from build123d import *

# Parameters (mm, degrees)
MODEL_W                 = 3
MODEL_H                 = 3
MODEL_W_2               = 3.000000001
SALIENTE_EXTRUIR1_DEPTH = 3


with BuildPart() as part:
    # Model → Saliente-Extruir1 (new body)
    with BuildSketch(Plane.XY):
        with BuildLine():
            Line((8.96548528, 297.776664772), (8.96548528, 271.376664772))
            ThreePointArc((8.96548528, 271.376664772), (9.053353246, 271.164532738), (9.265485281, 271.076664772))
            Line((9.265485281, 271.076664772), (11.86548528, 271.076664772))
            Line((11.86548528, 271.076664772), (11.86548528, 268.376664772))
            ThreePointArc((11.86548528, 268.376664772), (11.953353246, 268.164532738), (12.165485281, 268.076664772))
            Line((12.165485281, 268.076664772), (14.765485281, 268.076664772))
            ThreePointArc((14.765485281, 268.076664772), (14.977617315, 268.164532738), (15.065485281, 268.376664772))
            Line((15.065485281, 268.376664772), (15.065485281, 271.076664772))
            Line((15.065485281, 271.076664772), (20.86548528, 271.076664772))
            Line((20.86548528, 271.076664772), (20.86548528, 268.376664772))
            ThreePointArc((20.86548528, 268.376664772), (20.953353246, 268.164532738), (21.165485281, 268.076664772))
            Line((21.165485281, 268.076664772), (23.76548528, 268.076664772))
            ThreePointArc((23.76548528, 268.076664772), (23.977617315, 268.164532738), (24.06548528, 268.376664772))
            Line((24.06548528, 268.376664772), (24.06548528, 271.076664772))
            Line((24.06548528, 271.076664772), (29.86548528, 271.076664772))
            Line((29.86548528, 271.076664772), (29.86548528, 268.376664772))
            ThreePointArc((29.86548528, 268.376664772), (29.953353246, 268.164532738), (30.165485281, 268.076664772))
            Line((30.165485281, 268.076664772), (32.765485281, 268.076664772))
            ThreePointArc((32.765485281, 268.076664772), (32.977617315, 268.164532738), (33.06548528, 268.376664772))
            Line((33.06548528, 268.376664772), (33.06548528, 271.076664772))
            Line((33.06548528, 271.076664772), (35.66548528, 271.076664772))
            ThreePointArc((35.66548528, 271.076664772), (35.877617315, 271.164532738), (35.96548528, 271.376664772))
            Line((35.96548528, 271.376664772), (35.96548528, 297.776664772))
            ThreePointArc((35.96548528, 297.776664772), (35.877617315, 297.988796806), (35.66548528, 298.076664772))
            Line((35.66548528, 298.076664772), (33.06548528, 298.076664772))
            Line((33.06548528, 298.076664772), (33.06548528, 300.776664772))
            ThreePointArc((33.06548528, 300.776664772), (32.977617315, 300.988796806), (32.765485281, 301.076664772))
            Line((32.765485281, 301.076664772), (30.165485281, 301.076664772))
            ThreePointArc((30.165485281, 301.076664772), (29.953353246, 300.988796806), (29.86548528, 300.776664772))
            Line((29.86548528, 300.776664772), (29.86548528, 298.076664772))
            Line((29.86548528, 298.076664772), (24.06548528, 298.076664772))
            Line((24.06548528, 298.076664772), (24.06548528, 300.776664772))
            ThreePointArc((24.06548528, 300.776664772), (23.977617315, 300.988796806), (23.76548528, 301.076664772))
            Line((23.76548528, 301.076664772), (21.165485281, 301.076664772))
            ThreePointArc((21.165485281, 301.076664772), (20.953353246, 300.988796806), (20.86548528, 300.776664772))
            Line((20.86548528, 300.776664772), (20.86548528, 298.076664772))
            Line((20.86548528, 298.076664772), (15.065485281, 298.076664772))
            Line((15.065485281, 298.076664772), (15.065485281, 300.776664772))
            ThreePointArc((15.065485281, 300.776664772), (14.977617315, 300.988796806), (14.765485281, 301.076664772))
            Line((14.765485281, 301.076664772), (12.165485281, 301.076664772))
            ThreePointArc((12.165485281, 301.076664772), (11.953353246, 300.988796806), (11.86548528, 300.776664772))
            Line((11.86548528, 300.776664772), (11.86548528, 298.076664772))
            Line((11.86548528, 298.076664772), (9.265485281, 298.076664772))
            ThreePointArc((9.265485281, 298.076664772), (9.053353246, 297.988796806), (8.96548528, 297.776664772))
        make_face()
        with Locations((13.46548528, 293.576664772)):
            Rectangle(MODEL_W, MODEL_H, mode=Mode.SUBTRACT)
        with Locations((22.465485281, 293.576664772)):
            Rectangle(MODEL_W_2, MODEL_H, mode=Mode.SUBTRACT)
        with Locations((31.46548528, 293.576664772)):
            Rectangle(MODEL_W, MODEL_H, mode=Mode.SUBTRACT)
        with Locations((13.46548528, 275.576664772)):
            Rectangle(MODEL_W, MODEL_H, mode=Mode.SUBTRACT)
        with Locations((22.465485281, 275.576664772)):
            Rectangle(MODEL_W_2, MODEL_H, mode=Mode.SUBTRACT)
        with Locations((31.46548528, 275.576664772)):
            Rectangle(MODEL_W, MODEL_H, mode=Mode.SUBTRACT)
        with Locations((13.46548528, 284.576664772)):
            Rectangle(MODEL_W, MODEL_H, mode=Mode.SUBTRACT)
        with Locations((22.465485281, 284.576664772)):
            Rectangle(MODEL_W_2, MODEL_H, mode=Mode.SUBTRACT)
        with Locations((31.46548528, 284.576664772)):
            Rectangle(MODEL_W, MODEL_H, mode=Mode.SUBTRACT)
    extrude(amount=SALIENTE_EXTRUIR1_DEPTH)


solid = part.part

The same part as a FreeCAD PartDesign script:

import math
import FreeCAD as App
import Part
import Sketcher


def add_polygon(sketch, points):
    """Adds a closed chain of lines whose ends are joined by coincident constraints."""
    first, n = sketch.GeometryCount, len(points)
    for a, b in zip(points, points[1:] + points[:1]):
        sketch.addGeometry(Part.LineSegment(App.Vector(*a, 0), App.Vector(*b, 0)), False)
    for i in range(n):
        sketch.addConstraint(Sketcher.Constraint("Coincident", first + i, 2, first + (i + 1) % n, 1))

doc = App.newDocument("Part")
params = doc.addObject("Spreadsheet::Sheet", "Params")
for row, (alias, value) in enumerate([
    ("sketch1_radius", "0.3 mm"),
    ("sketch1_width", "3 mm"),
    ("sketch1_width2", "2.6 mm"),
    ("sketch1_width3", "5.8 mm"),
    ("sketch1_height", "26.4 mm"),
    ("pad1_length", "3 mm"),
], start=1):
    params.set(f"A{row}", alias)
    params.set(f"B{row}", "=" + value)
    params.setAlias(f"B{row}", alias)

body = doc.addObject("PartDesign::Body", "Body")

# Sketch on XY plane
sketch1 = doc.addObject("Sketcher::SketchObject", "Sketch")
body.addObject(sketch1)
sketch1.AttachmentSupport = (doc.XY_Plane, [""])
sketch1.MapMode = "FlatFace"
sketch1.addGeometry(Part.LineSegment(App.Vector(8.965485, 297.776665, 0), App.Vector(8.965485, 271.376665, 0)), False)  # 0
sketch1.addGeometry(Part.ArcOfCircle(Part.Circle(App.Vector(9.265485, 271.376665, 0), App.Vector(0, 0, 1), 0.3), math.radians(-180), math.radians(-90)), False)  # 1
sketch1.addGeometry(Part.LineSegment(App.Vector(9.265485, 271.076665, 0), App.Vector(11.865485, 271.076665, 0)), False)  # 2
sketch1.addGeometry(Part.LineSegment(App.Vector(11.865485, 271.076665, 0), App.Vector(11.865485, 268.376665, 0)), False)  # 3
sketch1.addGeometry(Part.ArcOfCircle(Part.Circle(App.Vector(12.165485, 268.376665, 0), App.Vector(0, 0, 1), 0.3), math.radians(-180), math.radians(-90)), False)  # 4
sketch1.addGeometry(Part.LineSegment(App.Vector(12.165485, 268.076665, 0), App.Vector(14.765485, 268.076665, 0)), False)  # 5
sketch1.addGeometry(Part.ArcOfCircle(Part.Circle(App.Vector(14.765485, 268.376665, 0), App.Vector(0, 0, 1), 0.3), math.radians(-90), math.radians(0)), False)  # 6
sketch1.addGeometry(Part.LineSegment(App.Vector(15.065485, 268.376665, 0), App.Vector(15.065485, 271.076665, 0)), False)  # 7
sketch1.addGeometry(Part.LineSegment(App.Vector(15.065485, 271.076665, 0), App.Vector(20.865485, 271.076665, 0)), False)  # 8
sketch1.addGeometry(Part.LineSegment(App.Vector(20.865485, 271.076665, 0), App.Vector(20.865485, 268.376665, 0)), False)  # 9
sketch1.addGeometry(Part.ArcOfCircle(Part.Circle(App.Vector(21.165485, 268.376665, 0), App.Vector(0, 0, 1), 0.3), math.radians(-180), math.radians(-90)), False)  # 10
sketch1.addGeometry(Part.LineSegment(App.Vector(21.165485, 268.076665, 0), App.Vector(23.765485, 268.076665, 0)), False)  # 11
sketch1.addGeometry(Part.ArcOfCircle(Part.Circle(App.Vector(23.765485, 268.376665, 0), App.Vector(0, 0, 1), 0.3), math.radians(-90), math.radians(0)), False)  # 12
sketch1.addGeometry(Part.LineSegment(App.Vector(24.065485, 268.376665, 0), App.Vector(24.065485, 271.076665, 0)), False)  # 13
sketch1.addGeometry(Part.LineSegment(App.Vector(24.065485, 271.076665, 0), App.Vector(29.865485, 271.076665, 0)), False)  # 14
sketch1.addGeometry(Part.LineSegment(App.Vector(29.865485, 271.076665, 0), App.Vector(29.865485, 268.376665, 0)), False)  # 15
sketch1.addGeometry(Part.ArcOfCircle(Part.Circle(App.Vector(30.165485, 268.376665, 0), App.Vector(0, 0, 1), 0.3), math.radians(-180), math.radians(-90)), False)  # 16
sketch1.addGeometry(Part.LineSegment(App.Vector(30.165485, 268.076665, 0), App.Vector(32.765485, 268.076665, 0)), False)  # 17
sketch1.addGeometry(Part.ArcOfCircle(Part.Circle(App.Vector(32.765485, 268.376665, 0), App.Vector(0, 0, 1), 0.3), math.radians(-90), math.radians(0)), False)  # 18
sketch1.addGeometry(Part.LineSegment(App.Vector(33.065485, 268.376665, 0), App.Vector(33.065485, 271.076665, 0)), False)  # 19
sketch1.addGeometry(Part.LineSegment(App.Vector(33.065485, 271.076665, 0), App.Vector(35.665485, 271.076665, 0)), False)  # 20
sketch1.addGeometry(Part.ArcOfCircle(Part.Circle(App.Vector(35.665485, 271.376665, 0), App.Vector(0, 0, 1), 0.3), math.radians(-90), math.radians(0)), False)  # 21
sketch1.addGeometry(Part.LineSegment(App.Vector(35.965485, 271.376665, 0), App.Vector(35.965485, 297.776665, 0)), False)  # 22
sketch1.addGeometry(Part.ArcOfCircle(Part.Circle(App.Vector(35.665485, 297.776665, 0), App.Vector(0, 0, 1), 0.3), math.radians(0), math.radians(90)), False)  # 23
sketch1.addGeometry(Part.LineSegment(App.Vector(35.665485, 298.076665, 0), App.Vector(33.065485, 298.076665, 0)), False)  # 24
sketch1.addGeometry(Part.LineSegment(App.Vector(33.065485, 298.076665, 0), App.Vector(33.065485, 300.776665, 0)), False)  # 25
sketch1.addGeometry(Part.ArcOfCircle(Part.Circle(App.Vector(32.765485, 300.776665, 0), App.Vector(0, 0, 1), 0.3), math.radians(0), math.radians(90)), False)  # 26
sketch1.addGeometry(Part.LineSegment(App.Vector(32.765485, 301.076665, 0), App.Vector(30.165485, 301.076665, 0)), False)  # 27
sketch1.addGeometry(Part.ArcOfCircle(Part.Circle(App.Vector(30.165485, 300.776665, 0), App.Vector(0, 0, 1), 0.3), math.radians(90), math.radians(180)), False)  # 28
sketch1.addGeometry(Part.LineSegment(App.Vector(29.865485, 300.776665, 0), App.Vector(29.865485, 298.076665, 0)), False)  # 29
sketch1.addGeometry(Part.LineSegment(App.Vector(29.865485, 298.076665, 0), App.Vector(24.065485, 298.076665, 0)), False)  # 30
sketch1.addGeometry(Part.LineSegment(App.Vector(24.065485, 298.076665, 0), App.Vector(24.065485, 300.776665, 0)), False)  # 31
sketch1.addGeometry(Part.ArcOfCircle(Part.Circle(App.Vector(23.765485, 300.776665, 0), App.Vector(0, 0, 1), 0.3), math.radians(0), math.radians(90)), False)  # 32
sketch1.addGeometry(Part.LineSegment(App.Vector(23.765485, 301.076665, 0), App.Vector(21.165485, 301.076665, 0)), False)  # 33
sketch1.addGeometry(Part.ArcOfCircle(Part.Circle(App.Vector(21.165485, 300.776665, 0), App.Vector(0, 0, 1), 0.3), math.radians(90), math.radians(180)), False)  # 34
sketch1.addGeometry(Part.LineSegment(App.Vector(20.865485, 300.776665, 0), App.Vector(20.865485, 298.076665, 0)), False)  # 35
sketch1.addGeometry(Part.LineSegment(App.Vector(20.865485, 298.076665, 0), App.Vector(15.065485, 298.076665, 0)), False)  # 36
sketch1.addGeometry(Part.LineSegment(App.Vector(15.065485, 298.076665, 0), App.Vector(15.065485, 300.776665, 0)), False)  # 37
sketch1.addGeometry(Part.ArcOfCircle(Part.Circle(App.Vector(14.765485, 300.776665, 0), App.Vector(0, 0, 1), 0.3), math.radians(0), math.radians(90)), False)  # 38
sketch1.addGeometry(Part.LineSegment(App.Vector(14.765485, 301.076665, 0), App.Vector(12.165485, 301.076665, 0)), False)  # 39
sketch1.addGeometry(Part.ArcOfCircle(Part.Circle(App.Vector(12.165485, 300.776665, 0), App.Vector(0, 0, 1), 0.3), math.radians(90), math.radians(180)), False)  # 40
sketch1.addGeometry(Part.LineSegment(App.Vector(11.865485, 300.776665, 0), App.Vector(11.865485, 298.076665, 0)), False)  # 41
sketch1.addGeometry(Part.LineSegment(App.Vector(11.865485, 298.076665, 0), App.Vector(9.265485, 298.076665, 0)), False)  # 42
sketch1.addGeometry(Part.ArcOfCircle(Part.Circle(App.Vector(9.265485, 297.776665, 0), App.Vector(0, 0, 1), 0.3), math.radians(90), math.radians(180)), False)  # 43
add_polygon(sketch1, [(14.965485, 274.076665), (11.965485, 274.076665), (11.965485, 277.076665), (14.965485, 277.076665)])  # lines 44-47
add_polygon(sketch1, [(23.965485, 274.076665), (20.965485, 274.076665), (20.965485, 277.076665), (23.965485, 277.076665)])  # lines 48-51
add_polygon(sketch1, [(32.965485, 274.076665), (29.965485, 274.076665), (29.965485, 277.076665), (32.965485, 277.076665)])  # lines 52-55
add_polygon(sketch1, [(14.965485, 283.076665), (11.965485, 283.076665), (11.965485, 286.076665), (14.965485, 286.076665)])  # lines 56-59
add_polygon(sketch1, [(14.965485, 292.076665), (11.965485, 292.076665), (11.965485, 295.076665), (14.965485, 295.076665)])  # lines 60-63
add_polygon(sketch1, [(23.965485, 283.076665), (20.965485, 283.076665), (20.965485, 286.076665), (23.965485, 286.076665)])  # lines 64-67
add_polygon(sketch1, [(32.965485, 283.076665), (29.965485, 283.076665), (29.965485, 286.076665), (32.965485, 286.076665)])  # lines 68-71
add_polygon(sketch1, [(23.965485, 292.076665), (20.965485, 292.076665), (20.965485, 295.076665), (23.965485, 295.076665)])  # lines 72-75
add_polygon(sketch1, [(32.965485, 292.076665), (29.965485, 292.076665), (29.965485, 295.076665), (32.965485, 295.076665)])  # lines 76-79
sketch1.addConstraint([
    Sketcher.Constraint("Tangent", 0, 2, 1, 1),
    Sketcher.Constraint("Tangent", 1, 2, 2, 1),
    Sketcher.Constraint("Coincident", 2, 2, 3, 1),
    Sketcher.Constraint("Tangent", 3, 2, 4, 1),
    Sketcher.Constraint("Tangent", 4, 2, 5, 1),
    Sketcher.Constraint("Tangent", 5, 2, 6, 1),
    Sketcher.Constraint("Tangent", 6, 2, 7, 1),
    Sketcher.Constraint("Coincident", 7, 2, 8, 1),
    Sketcher.Constraint("Coincident", 8, 2, 9, 1),
    Sketcher.Constraint("Tangent", 9, 2, 10, 1),
    Sketcher.Constraint("Tangent", 10, 2, 11, 1),
    Sketcher.Constraint("Tangent", 11, 2, 12, 1),
    Sketcher.Constraint("Tangent", 12, 2, 13, 1),
    Sketcher.Constraint("Coincident", 13, 2, 14, 1),
    Sketcher.Constraint("Coincident", 14, 2, 15, 1),
    Sketcher.Constraint("Tangent", 15, 2, 16, 1),
    Sketcher.Constraint("Tangent", 16, 2, 17, 1),
    Sketcher.Constraint("Tangent", 17, 2, 18, 1),
    Sketcher.Constraint("Tangent", 18, 2, 19, 1),
    Sketcher.Constraint("Coincident", 19, 2, 20, 1),
    Sketcher.Constraint("Tangent", 20, 2, 21, 1),
    Sketcher.Constraint("Tangent", 21, 2, 22, 1),
    Sketcher.Constraint("Tangent", 22, 2, 23, 1),
    Sketcher.Constraint("Tangent", 23, 2, 24, 1),
    Sketcher.Constraint("Coincident", 24, 2, 25, 1),
    Sketcher.Constraint("Tangent", 25, 2, 26, 1),
    Sketcher.Constraint("Tangent", 26, 2, 27, 1),
    Sketcher.Constraint("Tangent", 27, 2, 28, 1),
    Sketcher.Constraint("Tangent", 28, 2, 29, 1),
    Sketcher.Constraint("Coincident", 29, 2, 30, 1),
    Sketcher.Constraint("Coincident", 30, 2, 31, 1),
    Sketcher.Constraint("Tangent", 31, 2, 32, 1),
    Sketcher.Constraint("Tangent", 32, 2, 33, 1),
    Sketcher.Constraint("Tangent", 33, 2, 34, 1),
    Sketcher.Constraint("Tangent", 34, 2, 35, 1),
    Sketcher.Constraint("Coincident", 35, 2, 36, 1),
    Sketcher.Constraint("Coincident", 36, 2, 37, 1),
    Sketcher.Constraint("Tangent", 37, 2, 38, 1),
    Sketcher.Constraint("Tangent", 38, 2, 39, 1),
    Sketcher.Constraint("Tangent", 39, 2, 40, 1),
    Sketcher.Constraint("Tangent", 40, 2, 41, 1),
    Sketcher.Constraint("Coincident", 41, 2, 42, 1),
    Sketcher.Constraint("Tangent", 42, 2, 43, 1),
    Sketcher.Constraint("Tangent", 43, 2, 0, 1),
    Sketcher.Constraint("Vertical", 0),
    Sketcher.Constraint("Horizontal", 2),
    Sketcher.Constraint("Vertical", 3),
    Sketcher.Constraint("Horizontal", 5),
    Sketcher.Constraint("Vertical", 7),
    Sketcher.Constraint("Horizontal", 8),
    Sketcher.Constraint("Vertical", 9),
    Sketcher.Constraint("Horizontal", 11),
    Sketcher.Constraint("Vertical", 13),
    Sketcher.Constraint("Horizontal", 14),
    Sketcher.Constraint("Vertical", 15),
    Sketcher.Constraint("Horizontal", 17),
    Sketcher.Constraint("Vertical", 19),
    Sketcher.Constraint("Horizontal", 20),
    Sketcher.Constraint("Vertical", 22),
    Sketcher.Constraint("Horizontal", 24),
    Sketcher.Constraint("Vertical", 25),
    Sketcher.Constraint("Horizontal", 27),
    Sketcher.Constraint("Vertical", 29),
    Sketcher.Constraint("Horizontal", 30),
    Sketcher.Constraint("Vertical", 31),
    Sketcher.Constraint("Horizontal", 33),
    Sketcher.Constraint("Vertical", 35),
    Sketcher.Constraint("Horizontal", 36),
    Sketcher.Constraint("Vertical", 37),
    Sketcher.Constraint("Horizontal", 39),
    Sketcher.Constraint("Vertical", 41),
    Sketcher.Constraint("Horizontal", 42),
    Sketcher.Constraint("Horizontal", 44),
    Sketcher.Constraint("Vertical", 45),
    Sketcher.Constraint("Horizontal", 46),
    Sketcher.Constraint("Vertical", 47),
    Sketcher.Constraint("Horizontal", 48),
    Sketcher.Constraint("Vertical", 49),
    Sketcher.Constraint("Horizontal", 50),
    Sketcher.Constraint("Vertical", 51),
    Sketcher.Constraint("Horizontal", 52),
    Sketcher.Constraint("Vertical", 53),
    Sketcher.Constraint("Horizontal", 54),
    Sketcher.Constraint("Vertical", 55),
    Sketcher.Constraint("Horizontal", 56),
    Sketcher.Constraint("Vertical", 57),
    Sketcher.Constraint("Horizontal", 58),
    Sketcher.Constraint("Vertical", 59),
    Sketcher.Constraint("Horizontal", 60),
    Sketcher.Constraint("Vertical", 61),
    Sketcher.Constraint("Horizontal", 62),
    Sketcher.Constraint("Vertical", 63),
    Sketcher.Constraint("Horizontal", 64),
    Sketcher.Constraint("Vertical", 65),
    Sketcher.Constraint("Horizontal", 66),
    Sketcher.Constraint("Vertical", 67),
    Sketcher.Constraint("Horizontal", 68),
    Sketcher.Constraint("Vertical", 69),
    Sketcher.Constraint("Horizontal", 70),
    Sketcher.Constraint("Vertical", 71),
    Sketcher.Constraint("Horizontal", 72),
    Sketcher.Constraint("Vertical", 73),
    Sketcher.Constraint("Horizontal", 74),
    Sketcher.Constraint("Vertical", 75),
    Sketcher.Constraint("Horizontal", 76),
    Sketcher.Constraint("Vertical", 77),
    Sketcher.Constraint("Horizontal", 78),
    Sketcher.Constraint("Vertical", 79),
    Sketcher.Constraint("Equal", 1, 4),
    Sketcher.Constraint("Equal", 4, 6),
    Sketcher.Constraint("Equal", 6, 10),
    Sketcher.Constraint("Equal", 10, 12),
    Sketcher.Constraint("Equal", 12, 16),
    Sketcher.Constraint("Equal", 16, 18),
    Sketcher.Constraint("Equal", 18, 21),
    Sketcher.Constraint("Equal", 21, 23),
    Sketcher.Constraint("Equal", 23, 26),
    Sketcher.Constraint("Equal", 26, 28),
    Sketcher.Constraint("Equal", 28, 32),
    Sketcher.Constraint("Equal", 32, 34),
    Sketcher.Constraint("Equal", 34, 38),
    Sketcher.Constraint("Equal", 38, 40),
    Sketcher.Constraint("Equal", 40, 43),
    Sketcher.Constraint("Horizontal", 6, 3, 10, 3),
    Sketcher.Constraint("Horizontal", 12, 3, 16, 3),
    Sketcher.Constraint("Horizontal", 1, 3, 21, 3),
    Sketcher.Constraint("Horizontal", 28, 3, 32, 3),
    Sketcher.Constraint("Horizontal", 34, 3, 38, 3),
    Sketcher.Constraint("Horizontal", 23, 3, 43, 3),
    Sketcher.Constraint("Horizontal", 2, 2, 7, 2),
    Sketcher.Constraint("Horizontal", 8, 2, 13, 2),
    Sketcher.Constraint("Horizontal", 24, 2, 29, 2),
    Sketcher.Constraint("Horizontal", 30, 2, 35, 2),
    Sketcher.Constraint("Horizontal", 47, 2, 48, 2),
    Sketcher.Constraint("Horizontal", 46, 2, 49, 2),
    Sketcher.Constraint("Horizontal", 51, 2, 52, 2),
    Sketcher.Constraint("Horizontal", 50, 2, 53, 2),
    Sketcher.Constraint("Horizontal", 59, 2, 64, 2),
    Sketcher.Constraint("Horizontal", 58, 2, 65, 2),
    Sketcher.Constraint("Horizontal", 67, 2, 68, 2),
    Sketcher.Constraint("Horizontal", 66, 2, 69, 2),
    Sketcher.Constraint("Horizontal", 63, 2, 72, 2),
    Sketcher.Constraint("Horizontal", 62, 2, 73, 2),
    Sketcher.Constraint("Horizontal", 75, 2, 76, 2),
    Sketcher.Constraint("Horizontal", 74, 2, 77, 2),
    Sketcher.Constraint("Vertical", 18, 3, 26, 3),
    Sketcher.Constraint("Vertical", 16, 3, 28, 3),
    Sketcher.Constraint("Vertical", 12, 3, 32, 3),
    Sketcher.Constraint("Vertical", 10, 3, 34, 3),
    Sketcher.Constraint("Vertical", 6, 3, 38, 3),
    Sketcher.Constraint("Vertical", 4, 3, 40, 3),
    Sketcher.Constraint("Vertical", 45, 2, 56, 2),
    Sketcher.Constraint("Vertical", 47, 2, 58, 2),
    Sketcher.Constraint("Vertical", 57, 2, 60, 2),
    Sketcher.Constraint("Vertical", 59, 2, 62, 2),
    Sketcher.Constraint("Vertical", 49, 2, 64, 2),
    Sketcher.Constraint("Vertical", 51, 2, 66, 2),
    Sketcher.Constraint("Vertical", 53, 2, 68, 2),
    Sketcher.Constraint("Vertical", 55, 2, 70, 2),
    Sketcher.Constraint("Vertical", 65, 2, 72, 2),
    Sketcher.Constraint("Vertical", 67, 2, 74, 2),
    Sketcher.Constraint("Vertical", 69, 2, 76, 2),
    Sketcher.Constraint("Vertical", 71, 2, 78, 2),
    Sketcher.Constraint("Equal", 2, 5),
    Sketcher.Constraint("Equal", 5, 11),
    Sketcher.Constraint("Equal", 8, 14),
    Sketcher.Constraint("Equal", 11, 17),
    Sketcher.Constraint("Equal", 17, 20),
    Sketcher.Constraint("Equal", 46, 48),
    Sketcher.Constraint("Equal", 50, 52),
    Sketcher.Constraint("Equal", 19, 25),
    Sketcher.Constraint("Equal", 78, 45),
    Sketcher.Constraint("Equal", 55, 57),
    Sketcher.Constraint("Equal", 59, 61),
    Sketcher.Constraint("Radius", 1, 0.3),
    Sketcher.Constraint("DistanceX", 44, 2, 44, 1, 3.0),
    Sketcher.Constraint("DistanceX", 2, 1, 2, 2, 2.6),
    Sketcher.Constraint("DistanceX", 8, 1, 8, 2, 5.8),
    Sketcher.Constraint("DistanceY", 0, 2, 0, 1, 26.4),
    Sketcher.Constraint("DistanceY", 3, 2, 3, 1, 2.7),
    Sketcher.Constraint("DistanceX", -1, 1, 1, 3, 9.265485),
    Sketcher.Constraint("DistanceY", -1, 1, 1, 3, 271.376665),
    Sketcher.Constraint("DistanceX", -1, 1, 44, 2, 11.965485),
    Sketcher.Constraint("DistanceY", -1, 1, 44, 2, 274.076665),
    Sketcher.Constraint("DistanceX", -1, 1, 48, 2, 20.965485),
    Sketcher.Constraint("DistanceX", -1, 1, 52, 2, 29.965485),
    Sketcher.Constraint("DistanceY", -1, 1, 56, 2, 283.076665),
    Sketcher.Constraint("DistanceY", -1, 1, 60, 2, 292.076665),
])
sketch1.setExpression("Constraints[210]", "Params.sketch1_radius")
sketch1.setExpression("Constraints[211]", "Params.sketch1_width")
sketch1.setExpression("Constraints[212]", "Params.sketch1_width2")
sketch1.setExpression("Constraints[213]", "Params.sketch1_width3")
sketch1.setExpression("Constraints[214]", "Params.sketch1_height")
pad1 = doc.addObject("PartDesign::Pad", "Pad")
body.addObject(pad1)
pad1.Profile = sketch1
pad1.setExpression("Length", "Params.pad1_length")

doc.recompute()
